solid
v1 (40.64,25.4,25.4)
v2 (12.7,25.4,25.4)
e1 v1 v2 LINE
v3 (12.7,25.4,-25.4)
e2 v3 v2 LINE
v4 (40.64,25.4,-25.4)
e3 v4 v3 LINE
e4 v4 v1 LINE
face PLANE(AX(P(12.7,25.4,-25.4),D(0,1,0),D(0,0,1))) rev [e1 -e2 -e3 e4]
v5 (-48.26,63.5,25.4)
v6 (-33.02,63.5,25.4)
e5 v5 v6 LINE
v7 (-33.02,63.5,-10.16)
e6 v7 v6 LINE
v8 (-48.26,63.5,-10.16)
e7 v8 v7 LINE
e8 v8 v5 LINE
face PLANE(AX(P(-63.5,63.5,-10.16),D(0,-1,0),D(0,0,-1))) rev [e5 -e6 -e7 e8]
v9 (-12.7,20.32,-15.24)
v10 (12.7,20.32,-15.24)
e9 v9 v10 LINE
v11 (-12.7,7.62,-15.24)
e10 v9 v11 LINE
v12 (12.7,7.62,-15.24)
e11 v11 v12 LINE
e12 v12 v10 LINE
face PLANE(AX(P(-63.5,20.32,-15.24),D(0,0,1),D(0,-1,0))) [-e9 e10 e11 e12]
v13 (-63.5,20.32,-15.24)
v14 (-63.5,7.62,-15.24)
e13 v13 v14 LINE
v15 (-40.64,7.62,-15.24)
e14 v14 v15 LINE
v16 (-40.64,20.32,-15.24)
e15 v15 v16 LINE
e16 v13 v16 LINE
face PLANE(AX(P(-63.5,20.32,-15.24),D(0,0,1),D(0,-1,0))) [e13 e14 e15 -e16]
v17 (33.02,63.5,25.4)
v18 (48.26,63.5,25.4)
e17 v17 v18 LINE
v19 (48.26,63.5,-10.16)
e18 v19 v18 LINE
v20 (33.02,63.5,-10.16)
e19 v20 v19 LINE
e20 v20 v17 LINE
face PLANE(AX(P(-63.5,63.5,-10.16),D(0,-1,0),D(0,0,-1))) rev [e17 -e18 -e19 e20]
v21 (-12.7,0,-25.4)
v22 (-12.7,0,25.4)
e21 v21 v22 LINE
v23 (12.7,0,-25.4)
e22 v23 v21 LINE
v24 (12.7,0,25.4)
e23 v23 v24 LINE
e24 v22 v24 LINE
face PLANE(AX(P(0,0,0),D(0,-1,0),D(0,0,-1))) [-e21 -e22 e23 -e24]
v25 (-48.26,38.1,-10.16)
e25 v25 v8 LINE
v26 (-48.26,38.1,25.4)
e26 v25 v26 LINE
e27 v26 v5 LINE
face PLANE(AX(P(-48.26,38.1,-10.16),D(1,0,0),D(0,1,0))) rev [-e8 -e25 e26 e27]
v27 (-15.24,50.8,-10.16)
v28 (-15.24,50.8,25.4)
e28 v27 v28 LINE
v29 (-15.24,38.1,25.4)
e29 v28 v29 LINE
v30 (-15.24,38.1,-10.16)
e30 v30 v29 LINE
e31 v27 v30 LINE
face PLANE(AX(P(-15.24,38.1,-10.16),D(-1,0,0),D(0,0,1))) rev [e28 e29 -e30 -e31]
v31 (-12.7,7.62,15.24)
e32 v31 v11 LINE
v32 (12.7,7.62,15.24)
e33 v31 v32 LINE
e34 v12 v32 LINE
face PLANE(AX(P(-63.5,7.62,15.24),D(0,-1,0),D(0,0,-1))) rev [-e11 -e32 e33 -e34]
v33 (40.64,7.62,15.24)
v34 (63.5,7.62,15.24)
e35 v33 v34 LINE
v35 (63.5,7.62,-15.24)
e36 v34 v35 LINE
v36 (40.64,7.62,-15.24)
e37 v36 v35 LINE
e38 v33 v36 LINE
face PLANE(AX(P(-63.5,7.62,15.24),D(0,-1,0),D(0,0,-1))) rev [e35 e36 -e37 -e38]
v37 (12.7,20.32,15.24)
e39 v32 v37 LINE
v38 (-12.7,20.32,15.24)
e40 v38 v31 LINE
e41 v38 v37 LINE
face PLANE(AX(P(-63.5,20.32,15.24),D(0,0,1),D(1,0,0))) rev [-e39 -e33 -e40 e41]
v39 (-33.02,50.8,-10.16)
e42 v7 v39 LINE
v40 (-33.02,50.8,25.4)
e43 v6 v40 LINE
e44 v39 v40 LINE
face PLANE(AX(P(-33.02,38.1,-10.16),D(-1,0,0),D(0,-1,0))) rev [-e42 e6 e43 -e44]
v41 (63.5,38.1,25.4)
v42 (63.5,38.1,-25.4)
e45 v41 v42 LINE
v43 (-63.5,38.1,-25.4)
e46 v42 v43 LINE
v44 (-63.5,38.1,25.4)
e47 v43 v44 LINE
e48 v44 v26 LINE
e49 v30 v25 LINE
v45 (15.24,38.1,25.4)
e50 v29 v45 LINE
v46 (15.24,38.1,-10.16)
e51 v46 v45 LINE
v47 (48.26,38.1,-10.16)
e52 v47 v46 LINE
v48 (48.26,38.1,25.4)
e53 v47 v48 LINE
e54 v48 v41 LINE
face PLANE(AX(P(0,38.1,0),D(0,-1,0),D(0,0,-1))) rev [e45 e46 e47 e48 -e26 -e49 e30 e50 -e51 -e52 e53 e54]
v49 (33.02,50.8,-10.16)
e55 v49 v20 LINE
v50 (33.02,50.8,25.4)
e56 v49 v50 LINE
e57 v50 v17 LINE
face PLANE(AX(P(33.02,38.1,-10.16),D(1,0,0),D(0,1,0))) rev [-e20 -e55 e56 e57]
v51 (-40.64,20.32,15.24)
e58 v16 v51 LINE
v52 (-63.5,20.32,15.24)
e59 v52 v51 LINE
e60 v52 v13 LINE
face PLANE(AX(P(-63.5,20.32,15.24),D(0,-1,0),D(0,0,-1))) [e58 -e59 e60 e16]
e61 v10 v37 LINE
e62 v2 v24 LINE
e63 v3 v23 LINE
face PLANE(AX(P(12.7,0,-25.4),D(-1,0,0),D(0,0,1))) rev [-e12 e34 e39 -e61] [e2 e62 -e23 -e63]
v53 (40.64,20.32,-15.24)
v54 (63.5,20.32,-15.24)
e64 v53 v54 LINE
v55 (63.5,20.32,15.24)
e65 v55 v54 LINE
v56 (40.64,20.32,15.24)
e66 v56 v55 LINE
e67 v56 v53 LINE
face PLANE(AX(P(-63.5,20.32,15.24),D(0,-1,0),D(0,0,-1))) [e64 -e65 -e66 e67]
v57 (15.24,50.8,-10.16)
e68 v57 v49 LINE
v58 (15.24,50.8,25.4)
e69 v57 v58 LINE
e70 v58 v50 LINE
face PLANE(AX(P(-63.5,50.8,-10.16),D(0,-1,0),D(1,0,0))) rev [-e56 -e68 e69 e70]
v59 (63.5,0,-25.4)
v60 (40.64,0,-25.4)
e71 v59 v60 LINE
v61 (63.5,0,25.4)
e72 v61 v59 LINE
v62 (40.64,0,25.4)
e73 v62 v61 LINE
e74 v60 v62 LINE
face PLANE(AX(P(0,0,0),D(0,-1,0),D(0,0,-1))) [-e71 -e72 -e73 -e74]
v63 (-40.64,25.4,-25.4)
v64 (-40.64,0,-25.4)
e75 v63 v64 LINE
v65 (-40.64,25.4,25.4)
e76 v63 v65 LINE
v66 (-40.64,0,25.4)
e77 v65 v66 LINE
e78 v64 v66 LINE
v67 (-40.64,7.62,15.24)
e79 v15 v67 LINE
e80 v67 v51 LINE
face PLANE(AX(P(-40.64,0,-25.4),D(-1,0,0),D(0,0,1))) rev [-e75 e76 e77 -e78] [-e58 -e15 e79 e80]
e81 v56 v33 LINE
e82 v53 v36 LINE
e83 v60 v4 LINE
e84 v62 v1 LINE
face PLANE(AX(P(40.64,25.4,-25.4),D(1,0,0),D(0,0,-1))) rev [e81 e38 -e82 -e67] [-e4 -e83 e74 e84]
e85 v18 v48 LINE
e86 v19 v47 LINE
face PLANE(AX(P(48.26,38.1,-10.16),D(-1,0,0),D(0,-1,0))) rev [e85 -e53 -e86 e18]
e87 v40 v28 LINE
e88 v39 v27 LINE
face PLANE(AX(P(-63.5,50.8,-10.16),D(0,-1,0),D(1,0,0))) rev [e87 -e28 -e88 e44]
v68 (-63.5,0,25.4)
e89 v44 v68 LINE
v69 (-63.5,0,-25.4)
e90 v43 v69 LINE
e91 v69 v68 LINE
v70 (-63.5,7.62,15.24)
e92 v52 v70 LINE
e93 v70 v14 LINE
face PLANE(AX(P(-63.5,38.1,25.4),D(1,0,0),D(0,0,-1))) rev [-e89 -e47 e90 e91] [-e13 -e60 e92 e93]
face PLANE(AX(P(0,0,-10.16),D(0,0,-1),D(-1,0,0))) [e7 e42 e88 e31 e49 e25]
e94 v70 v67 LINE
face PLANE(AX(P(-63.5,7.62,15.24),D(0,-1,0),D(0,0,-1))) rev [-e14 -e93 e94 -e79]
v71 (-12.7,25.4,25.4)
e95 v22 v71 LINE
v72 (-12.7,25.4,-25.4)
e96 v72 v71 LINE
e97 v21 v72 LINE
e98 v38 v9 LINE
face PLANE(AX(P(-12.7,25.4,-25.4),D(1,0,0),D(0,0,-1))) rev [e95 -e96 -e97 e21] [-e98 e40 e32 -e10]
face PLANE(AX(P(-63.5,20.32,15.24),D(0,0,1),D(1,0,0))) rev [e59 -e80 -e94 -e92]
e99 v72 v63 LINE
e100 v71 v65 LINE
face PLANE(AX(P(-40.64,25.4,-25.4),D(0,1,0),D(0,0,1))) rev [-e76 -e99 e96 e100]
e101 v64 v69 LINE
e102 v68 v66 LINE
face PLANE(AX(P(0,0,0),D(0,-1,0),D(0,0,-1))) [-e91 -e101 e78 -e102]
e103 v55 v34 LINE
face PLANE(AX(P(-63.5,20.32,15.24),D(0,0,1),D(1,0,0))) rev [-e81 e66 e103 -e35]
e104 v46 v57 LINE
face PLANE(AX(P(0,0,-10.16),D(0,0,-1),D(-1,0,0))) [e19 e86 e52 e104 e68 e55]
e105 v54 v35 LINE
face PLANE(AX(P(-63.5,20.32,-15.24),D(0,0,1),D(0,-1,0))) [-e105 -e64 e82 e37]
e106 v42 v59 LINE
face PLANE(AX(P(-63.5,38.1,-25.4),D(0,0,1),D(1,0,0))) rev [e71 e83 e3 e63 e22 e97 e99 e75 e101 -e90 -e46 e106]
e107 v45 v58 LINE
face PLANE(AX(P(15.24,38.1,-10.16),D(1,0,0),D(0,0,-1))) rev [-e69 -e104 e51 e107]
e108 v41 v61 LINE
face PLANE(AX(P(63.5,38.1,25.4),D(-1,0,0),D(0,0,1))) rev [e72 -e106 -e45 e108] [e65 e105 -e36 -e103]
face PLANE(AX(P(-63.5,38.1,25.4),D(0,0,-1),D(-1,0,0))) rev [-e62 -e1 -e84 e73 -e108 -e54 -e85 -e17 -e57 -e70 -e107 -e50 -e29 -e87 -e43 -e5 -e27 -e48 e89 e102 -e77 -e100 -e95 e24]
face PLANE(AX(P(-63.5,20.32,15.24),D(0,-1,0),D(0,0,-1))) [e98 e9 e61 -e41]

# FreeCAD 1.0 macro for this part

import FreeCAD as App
import Part
import Sketcher

V = App.Vector
Q = App.Units.Quantity


def add_polygon(sketch, points):
    """Adds a closed chain of lines whose ends are joined by coincident constraints."""
    first, n = sketch.GeometryCount, len(points)
    for a, b in zip(points, points[1:] + points[:1]):
        sketch.addGeometry(Part.LineSegment(App.Vector(*a, 0), App.Vector(*b, 0)), False)
    for i in range(n):
        sketch.addConstraint(Sketcher.Constraint("Coincident", first + i, 2, first + (i + 1) % n, 1))

doc = App.newDocument("Part")
body = doc.addObject("PartDesign::Body", "Body")

# Sketch on XZ plane
sketch1 = doc.addObject("Sketcher::SketchObject", "Sketch")
body.addObject(sketch1)
sketch1.AttachmentSupport = (doc.XZ_Plane, [""])
sketch1.MapMode = "FlatFace"
add_polygon(sketch1, [(-64, -25), (-64, 25), (64, 25), (64, -25)])  # lines 0-3
sketch1.addConstraint([
    Sketcher.Constraint("Vertical", 0),
    Sketcher.Constraint("Horizontal", 1),
    Sketcher.Constraint("Vertical", 2),
    Sketcher.Constraint("Horizontal", 3),
    Sketcher.Constraint("Symmetric", 0, 2, 2, 2, -1, 1),
    Sketcher.Constraint("DistanceX", 1, 1, 1, 2, Q("5 in")),
    Sketcher.Constraint("DistanceY", 0, 1, 0, 2, Q("2 in")),
])
pad1 = doc.addObject("PartDesign::Pad", "Pad")
body.addObject(pad1)
pad1.Profile = sketch1
pad1.Length = Q("1.5 in")
pad1.Reversed = True

# Sketch on XY plane
sketch2 = doc.addObject("Sketcher::SketchObject", "Sketch001")
body.addObject(sketch2)
sketch2.AttachmentSupport = (doc.XY_Plane, [""])
sketch2.MapMode = "FlatFace"
add_polygon(sketch2, [(-41, 25), (-41, 0), (-13, 0), (-13, 25)])  # lines 0-3
add_polygon(sketch2, [(13, 25), (13, 0), (41, 0), (41, 25)])  # lines 4-7
sketch2.addConstraint([
    Sketcher.Constraint("Vertical", 0),
    Sketcher.Constraint("Horizontal", 1),
    Sketcher.Constraint("Vertical", 2),
    Sketcher.Constraint("Horizontal", 3),
    Sketcher.Constraint("Vertical", 4),
    Sketcher.Constraint("Horizontal", 5),
    Sketcher.Constraint("Vertical", 6),
    Sketcher.Constraint("Horizontal", 7),
    Sketcher.Constraint("Symmetric", 1, 2, 4, 2, -1, 1),
    Sketcher.Constraint("Symmetric", 0, 2, 5, 2, -2),
    Sketcher.Constraint("Horizontal", 3, 2, 6, 2),
    Sketcher.Constraint("DistanceY", 0, 2, 0, 1, Q("1 in")),
    Sketcher.Constraint("DistanceX", 1, 1, 1, 2, Q("1.1 in")),
    Sketcher.Constraint("DistanceX", 1, 2, 4, 2, Q("1 in")),
])
pocket1 = doc.addObject("PartDesign::Pocket", "Pocket")
body.addObject(pocket1)
pocket1.Profile = sketch2
pocket1.Type = "ThroughAll"
pocket1.Midplane = True

# Sketch on YZ plane
sketch3 = doc.addObject("Sketcher::SketchObject", "Sketch002")
body.addObject(sketch3)
sketch3.AttachmentSupport = (doc.YZ_Plane, [""])
sketch3.MapMode = "FlatFace"
add_polygon(sketch3, [(20, 15), (8, 15), (8, -15), (20, -15)])  # lines 0-3
sketch3.addConstraint([
    Sketcher.Constraint("Horizontal", 0),
    Sketcher.Constraint("Vertical", 1),
    Sketcher.Constraint("Horizontal", 2),
    Sketcher.Constraint("Vertical", 3),
    Sketcher.Constraint("DistanceX", 0, 2, 0, 1, Q("0.5 in")),
    Sketcher.Constraint("DistanceY", 1, 2, 1, 1, Q("1.2 in")),
    Sketcher.Constraint("DistanceX", -1, 1, 0, 2, Q("0.3 in")),
    Sketcher.Constraint("DistanceY", -1, 1, 0, 2, Q("0.6 in")),
])
pocket2 = doc.addObject("PartDesign::Pocket", "Pocket001")
body.addObject(pocket2)
pocket2.Profile = sketch3
pocket2.Type = "ThroughAll"
pocket2.Midplane = True

# Sketch on XY plane
sketch4 = doc.addObject("Sketcher::SketchObject", "Sketch003")
body.addObject(sketch4)
sketch4.AttachmentSupport = (doc.XY_Plane, [""])
sketch4.MapMode = "FlatFace"
sketch4.AttachmentOffset = App.Placement(V(0, 0, 1 * 25.4), App.Rotation())
add_polygon(sketch4, [(-48, 38), (-48, 64), (-33, 64), (-33, 51), (-15, 51), (-15, 38)])  # lines 0-5
add_polygon(sketch4, [(48, 38), (15, 38), (15, 51), (33, 51), (33, 64), (48, 64)])  # lines 6-11
sketch4.addConstraint([
    Sketcher.Constraint("Vertical", 0),
    Sketcher.Constraint("Horizontal", 1),
    Sketcher.Constraint("Vertical", 2),
    Sketcher.Constraint("Horizontal", 3),
    Sketcher.Constraint("Vertical", 4),
    Sketcher.Constraint("Horizontal", 5),
    Sketcher.Constraint("Horizontal", 6),
    Sketcher.Constraint("Vertical", 7),
    Sketcher.Constraint("Horizontal", 8),
    Sketcher.Constraint("Vertical", 9),
    Sketcher.Constraint("Horizontal", 10),
    Sketcher.Constraint("Vertical", 11),
    Sketcher.Constraint("Symmetric", 4, 2, 6, 2, -2),
    Sketcher.Constraint("Symmetric", 2, 2, 8, 2, -2),
    Sketcher.Constraint("Symmetric", 0, 2, 10, 2, -2),
    Sketcher.Constraint("Equal", 2, 4),
    Sketcher.Constraint("DistanceY", 0, 1, 0, 2, Q("1 in")),
    Sketcher.Constraint("DistanceX", 1, 1, 1, 2, Q("0.6 in")),
    Sketcher.Constraint("DistanceX", 3, 1, 3, 2, Q("0.7 in")),
    Sketcher.Constraint("DistanceY", -1, 1, 2, 2, Q("2 in")),
    Sketcher.Constraint("DistanceX", 0, 2, -1, 1, Q("1.9 in")),
])
pad2 = doc.addObject("PartDesign::Pad", "Pad001")
body.addObject(pad2)
pad2.Profile = sketch4
pad2.Length = Q("1.4 in")
pad2.Reversed = True

doc.recompute()
